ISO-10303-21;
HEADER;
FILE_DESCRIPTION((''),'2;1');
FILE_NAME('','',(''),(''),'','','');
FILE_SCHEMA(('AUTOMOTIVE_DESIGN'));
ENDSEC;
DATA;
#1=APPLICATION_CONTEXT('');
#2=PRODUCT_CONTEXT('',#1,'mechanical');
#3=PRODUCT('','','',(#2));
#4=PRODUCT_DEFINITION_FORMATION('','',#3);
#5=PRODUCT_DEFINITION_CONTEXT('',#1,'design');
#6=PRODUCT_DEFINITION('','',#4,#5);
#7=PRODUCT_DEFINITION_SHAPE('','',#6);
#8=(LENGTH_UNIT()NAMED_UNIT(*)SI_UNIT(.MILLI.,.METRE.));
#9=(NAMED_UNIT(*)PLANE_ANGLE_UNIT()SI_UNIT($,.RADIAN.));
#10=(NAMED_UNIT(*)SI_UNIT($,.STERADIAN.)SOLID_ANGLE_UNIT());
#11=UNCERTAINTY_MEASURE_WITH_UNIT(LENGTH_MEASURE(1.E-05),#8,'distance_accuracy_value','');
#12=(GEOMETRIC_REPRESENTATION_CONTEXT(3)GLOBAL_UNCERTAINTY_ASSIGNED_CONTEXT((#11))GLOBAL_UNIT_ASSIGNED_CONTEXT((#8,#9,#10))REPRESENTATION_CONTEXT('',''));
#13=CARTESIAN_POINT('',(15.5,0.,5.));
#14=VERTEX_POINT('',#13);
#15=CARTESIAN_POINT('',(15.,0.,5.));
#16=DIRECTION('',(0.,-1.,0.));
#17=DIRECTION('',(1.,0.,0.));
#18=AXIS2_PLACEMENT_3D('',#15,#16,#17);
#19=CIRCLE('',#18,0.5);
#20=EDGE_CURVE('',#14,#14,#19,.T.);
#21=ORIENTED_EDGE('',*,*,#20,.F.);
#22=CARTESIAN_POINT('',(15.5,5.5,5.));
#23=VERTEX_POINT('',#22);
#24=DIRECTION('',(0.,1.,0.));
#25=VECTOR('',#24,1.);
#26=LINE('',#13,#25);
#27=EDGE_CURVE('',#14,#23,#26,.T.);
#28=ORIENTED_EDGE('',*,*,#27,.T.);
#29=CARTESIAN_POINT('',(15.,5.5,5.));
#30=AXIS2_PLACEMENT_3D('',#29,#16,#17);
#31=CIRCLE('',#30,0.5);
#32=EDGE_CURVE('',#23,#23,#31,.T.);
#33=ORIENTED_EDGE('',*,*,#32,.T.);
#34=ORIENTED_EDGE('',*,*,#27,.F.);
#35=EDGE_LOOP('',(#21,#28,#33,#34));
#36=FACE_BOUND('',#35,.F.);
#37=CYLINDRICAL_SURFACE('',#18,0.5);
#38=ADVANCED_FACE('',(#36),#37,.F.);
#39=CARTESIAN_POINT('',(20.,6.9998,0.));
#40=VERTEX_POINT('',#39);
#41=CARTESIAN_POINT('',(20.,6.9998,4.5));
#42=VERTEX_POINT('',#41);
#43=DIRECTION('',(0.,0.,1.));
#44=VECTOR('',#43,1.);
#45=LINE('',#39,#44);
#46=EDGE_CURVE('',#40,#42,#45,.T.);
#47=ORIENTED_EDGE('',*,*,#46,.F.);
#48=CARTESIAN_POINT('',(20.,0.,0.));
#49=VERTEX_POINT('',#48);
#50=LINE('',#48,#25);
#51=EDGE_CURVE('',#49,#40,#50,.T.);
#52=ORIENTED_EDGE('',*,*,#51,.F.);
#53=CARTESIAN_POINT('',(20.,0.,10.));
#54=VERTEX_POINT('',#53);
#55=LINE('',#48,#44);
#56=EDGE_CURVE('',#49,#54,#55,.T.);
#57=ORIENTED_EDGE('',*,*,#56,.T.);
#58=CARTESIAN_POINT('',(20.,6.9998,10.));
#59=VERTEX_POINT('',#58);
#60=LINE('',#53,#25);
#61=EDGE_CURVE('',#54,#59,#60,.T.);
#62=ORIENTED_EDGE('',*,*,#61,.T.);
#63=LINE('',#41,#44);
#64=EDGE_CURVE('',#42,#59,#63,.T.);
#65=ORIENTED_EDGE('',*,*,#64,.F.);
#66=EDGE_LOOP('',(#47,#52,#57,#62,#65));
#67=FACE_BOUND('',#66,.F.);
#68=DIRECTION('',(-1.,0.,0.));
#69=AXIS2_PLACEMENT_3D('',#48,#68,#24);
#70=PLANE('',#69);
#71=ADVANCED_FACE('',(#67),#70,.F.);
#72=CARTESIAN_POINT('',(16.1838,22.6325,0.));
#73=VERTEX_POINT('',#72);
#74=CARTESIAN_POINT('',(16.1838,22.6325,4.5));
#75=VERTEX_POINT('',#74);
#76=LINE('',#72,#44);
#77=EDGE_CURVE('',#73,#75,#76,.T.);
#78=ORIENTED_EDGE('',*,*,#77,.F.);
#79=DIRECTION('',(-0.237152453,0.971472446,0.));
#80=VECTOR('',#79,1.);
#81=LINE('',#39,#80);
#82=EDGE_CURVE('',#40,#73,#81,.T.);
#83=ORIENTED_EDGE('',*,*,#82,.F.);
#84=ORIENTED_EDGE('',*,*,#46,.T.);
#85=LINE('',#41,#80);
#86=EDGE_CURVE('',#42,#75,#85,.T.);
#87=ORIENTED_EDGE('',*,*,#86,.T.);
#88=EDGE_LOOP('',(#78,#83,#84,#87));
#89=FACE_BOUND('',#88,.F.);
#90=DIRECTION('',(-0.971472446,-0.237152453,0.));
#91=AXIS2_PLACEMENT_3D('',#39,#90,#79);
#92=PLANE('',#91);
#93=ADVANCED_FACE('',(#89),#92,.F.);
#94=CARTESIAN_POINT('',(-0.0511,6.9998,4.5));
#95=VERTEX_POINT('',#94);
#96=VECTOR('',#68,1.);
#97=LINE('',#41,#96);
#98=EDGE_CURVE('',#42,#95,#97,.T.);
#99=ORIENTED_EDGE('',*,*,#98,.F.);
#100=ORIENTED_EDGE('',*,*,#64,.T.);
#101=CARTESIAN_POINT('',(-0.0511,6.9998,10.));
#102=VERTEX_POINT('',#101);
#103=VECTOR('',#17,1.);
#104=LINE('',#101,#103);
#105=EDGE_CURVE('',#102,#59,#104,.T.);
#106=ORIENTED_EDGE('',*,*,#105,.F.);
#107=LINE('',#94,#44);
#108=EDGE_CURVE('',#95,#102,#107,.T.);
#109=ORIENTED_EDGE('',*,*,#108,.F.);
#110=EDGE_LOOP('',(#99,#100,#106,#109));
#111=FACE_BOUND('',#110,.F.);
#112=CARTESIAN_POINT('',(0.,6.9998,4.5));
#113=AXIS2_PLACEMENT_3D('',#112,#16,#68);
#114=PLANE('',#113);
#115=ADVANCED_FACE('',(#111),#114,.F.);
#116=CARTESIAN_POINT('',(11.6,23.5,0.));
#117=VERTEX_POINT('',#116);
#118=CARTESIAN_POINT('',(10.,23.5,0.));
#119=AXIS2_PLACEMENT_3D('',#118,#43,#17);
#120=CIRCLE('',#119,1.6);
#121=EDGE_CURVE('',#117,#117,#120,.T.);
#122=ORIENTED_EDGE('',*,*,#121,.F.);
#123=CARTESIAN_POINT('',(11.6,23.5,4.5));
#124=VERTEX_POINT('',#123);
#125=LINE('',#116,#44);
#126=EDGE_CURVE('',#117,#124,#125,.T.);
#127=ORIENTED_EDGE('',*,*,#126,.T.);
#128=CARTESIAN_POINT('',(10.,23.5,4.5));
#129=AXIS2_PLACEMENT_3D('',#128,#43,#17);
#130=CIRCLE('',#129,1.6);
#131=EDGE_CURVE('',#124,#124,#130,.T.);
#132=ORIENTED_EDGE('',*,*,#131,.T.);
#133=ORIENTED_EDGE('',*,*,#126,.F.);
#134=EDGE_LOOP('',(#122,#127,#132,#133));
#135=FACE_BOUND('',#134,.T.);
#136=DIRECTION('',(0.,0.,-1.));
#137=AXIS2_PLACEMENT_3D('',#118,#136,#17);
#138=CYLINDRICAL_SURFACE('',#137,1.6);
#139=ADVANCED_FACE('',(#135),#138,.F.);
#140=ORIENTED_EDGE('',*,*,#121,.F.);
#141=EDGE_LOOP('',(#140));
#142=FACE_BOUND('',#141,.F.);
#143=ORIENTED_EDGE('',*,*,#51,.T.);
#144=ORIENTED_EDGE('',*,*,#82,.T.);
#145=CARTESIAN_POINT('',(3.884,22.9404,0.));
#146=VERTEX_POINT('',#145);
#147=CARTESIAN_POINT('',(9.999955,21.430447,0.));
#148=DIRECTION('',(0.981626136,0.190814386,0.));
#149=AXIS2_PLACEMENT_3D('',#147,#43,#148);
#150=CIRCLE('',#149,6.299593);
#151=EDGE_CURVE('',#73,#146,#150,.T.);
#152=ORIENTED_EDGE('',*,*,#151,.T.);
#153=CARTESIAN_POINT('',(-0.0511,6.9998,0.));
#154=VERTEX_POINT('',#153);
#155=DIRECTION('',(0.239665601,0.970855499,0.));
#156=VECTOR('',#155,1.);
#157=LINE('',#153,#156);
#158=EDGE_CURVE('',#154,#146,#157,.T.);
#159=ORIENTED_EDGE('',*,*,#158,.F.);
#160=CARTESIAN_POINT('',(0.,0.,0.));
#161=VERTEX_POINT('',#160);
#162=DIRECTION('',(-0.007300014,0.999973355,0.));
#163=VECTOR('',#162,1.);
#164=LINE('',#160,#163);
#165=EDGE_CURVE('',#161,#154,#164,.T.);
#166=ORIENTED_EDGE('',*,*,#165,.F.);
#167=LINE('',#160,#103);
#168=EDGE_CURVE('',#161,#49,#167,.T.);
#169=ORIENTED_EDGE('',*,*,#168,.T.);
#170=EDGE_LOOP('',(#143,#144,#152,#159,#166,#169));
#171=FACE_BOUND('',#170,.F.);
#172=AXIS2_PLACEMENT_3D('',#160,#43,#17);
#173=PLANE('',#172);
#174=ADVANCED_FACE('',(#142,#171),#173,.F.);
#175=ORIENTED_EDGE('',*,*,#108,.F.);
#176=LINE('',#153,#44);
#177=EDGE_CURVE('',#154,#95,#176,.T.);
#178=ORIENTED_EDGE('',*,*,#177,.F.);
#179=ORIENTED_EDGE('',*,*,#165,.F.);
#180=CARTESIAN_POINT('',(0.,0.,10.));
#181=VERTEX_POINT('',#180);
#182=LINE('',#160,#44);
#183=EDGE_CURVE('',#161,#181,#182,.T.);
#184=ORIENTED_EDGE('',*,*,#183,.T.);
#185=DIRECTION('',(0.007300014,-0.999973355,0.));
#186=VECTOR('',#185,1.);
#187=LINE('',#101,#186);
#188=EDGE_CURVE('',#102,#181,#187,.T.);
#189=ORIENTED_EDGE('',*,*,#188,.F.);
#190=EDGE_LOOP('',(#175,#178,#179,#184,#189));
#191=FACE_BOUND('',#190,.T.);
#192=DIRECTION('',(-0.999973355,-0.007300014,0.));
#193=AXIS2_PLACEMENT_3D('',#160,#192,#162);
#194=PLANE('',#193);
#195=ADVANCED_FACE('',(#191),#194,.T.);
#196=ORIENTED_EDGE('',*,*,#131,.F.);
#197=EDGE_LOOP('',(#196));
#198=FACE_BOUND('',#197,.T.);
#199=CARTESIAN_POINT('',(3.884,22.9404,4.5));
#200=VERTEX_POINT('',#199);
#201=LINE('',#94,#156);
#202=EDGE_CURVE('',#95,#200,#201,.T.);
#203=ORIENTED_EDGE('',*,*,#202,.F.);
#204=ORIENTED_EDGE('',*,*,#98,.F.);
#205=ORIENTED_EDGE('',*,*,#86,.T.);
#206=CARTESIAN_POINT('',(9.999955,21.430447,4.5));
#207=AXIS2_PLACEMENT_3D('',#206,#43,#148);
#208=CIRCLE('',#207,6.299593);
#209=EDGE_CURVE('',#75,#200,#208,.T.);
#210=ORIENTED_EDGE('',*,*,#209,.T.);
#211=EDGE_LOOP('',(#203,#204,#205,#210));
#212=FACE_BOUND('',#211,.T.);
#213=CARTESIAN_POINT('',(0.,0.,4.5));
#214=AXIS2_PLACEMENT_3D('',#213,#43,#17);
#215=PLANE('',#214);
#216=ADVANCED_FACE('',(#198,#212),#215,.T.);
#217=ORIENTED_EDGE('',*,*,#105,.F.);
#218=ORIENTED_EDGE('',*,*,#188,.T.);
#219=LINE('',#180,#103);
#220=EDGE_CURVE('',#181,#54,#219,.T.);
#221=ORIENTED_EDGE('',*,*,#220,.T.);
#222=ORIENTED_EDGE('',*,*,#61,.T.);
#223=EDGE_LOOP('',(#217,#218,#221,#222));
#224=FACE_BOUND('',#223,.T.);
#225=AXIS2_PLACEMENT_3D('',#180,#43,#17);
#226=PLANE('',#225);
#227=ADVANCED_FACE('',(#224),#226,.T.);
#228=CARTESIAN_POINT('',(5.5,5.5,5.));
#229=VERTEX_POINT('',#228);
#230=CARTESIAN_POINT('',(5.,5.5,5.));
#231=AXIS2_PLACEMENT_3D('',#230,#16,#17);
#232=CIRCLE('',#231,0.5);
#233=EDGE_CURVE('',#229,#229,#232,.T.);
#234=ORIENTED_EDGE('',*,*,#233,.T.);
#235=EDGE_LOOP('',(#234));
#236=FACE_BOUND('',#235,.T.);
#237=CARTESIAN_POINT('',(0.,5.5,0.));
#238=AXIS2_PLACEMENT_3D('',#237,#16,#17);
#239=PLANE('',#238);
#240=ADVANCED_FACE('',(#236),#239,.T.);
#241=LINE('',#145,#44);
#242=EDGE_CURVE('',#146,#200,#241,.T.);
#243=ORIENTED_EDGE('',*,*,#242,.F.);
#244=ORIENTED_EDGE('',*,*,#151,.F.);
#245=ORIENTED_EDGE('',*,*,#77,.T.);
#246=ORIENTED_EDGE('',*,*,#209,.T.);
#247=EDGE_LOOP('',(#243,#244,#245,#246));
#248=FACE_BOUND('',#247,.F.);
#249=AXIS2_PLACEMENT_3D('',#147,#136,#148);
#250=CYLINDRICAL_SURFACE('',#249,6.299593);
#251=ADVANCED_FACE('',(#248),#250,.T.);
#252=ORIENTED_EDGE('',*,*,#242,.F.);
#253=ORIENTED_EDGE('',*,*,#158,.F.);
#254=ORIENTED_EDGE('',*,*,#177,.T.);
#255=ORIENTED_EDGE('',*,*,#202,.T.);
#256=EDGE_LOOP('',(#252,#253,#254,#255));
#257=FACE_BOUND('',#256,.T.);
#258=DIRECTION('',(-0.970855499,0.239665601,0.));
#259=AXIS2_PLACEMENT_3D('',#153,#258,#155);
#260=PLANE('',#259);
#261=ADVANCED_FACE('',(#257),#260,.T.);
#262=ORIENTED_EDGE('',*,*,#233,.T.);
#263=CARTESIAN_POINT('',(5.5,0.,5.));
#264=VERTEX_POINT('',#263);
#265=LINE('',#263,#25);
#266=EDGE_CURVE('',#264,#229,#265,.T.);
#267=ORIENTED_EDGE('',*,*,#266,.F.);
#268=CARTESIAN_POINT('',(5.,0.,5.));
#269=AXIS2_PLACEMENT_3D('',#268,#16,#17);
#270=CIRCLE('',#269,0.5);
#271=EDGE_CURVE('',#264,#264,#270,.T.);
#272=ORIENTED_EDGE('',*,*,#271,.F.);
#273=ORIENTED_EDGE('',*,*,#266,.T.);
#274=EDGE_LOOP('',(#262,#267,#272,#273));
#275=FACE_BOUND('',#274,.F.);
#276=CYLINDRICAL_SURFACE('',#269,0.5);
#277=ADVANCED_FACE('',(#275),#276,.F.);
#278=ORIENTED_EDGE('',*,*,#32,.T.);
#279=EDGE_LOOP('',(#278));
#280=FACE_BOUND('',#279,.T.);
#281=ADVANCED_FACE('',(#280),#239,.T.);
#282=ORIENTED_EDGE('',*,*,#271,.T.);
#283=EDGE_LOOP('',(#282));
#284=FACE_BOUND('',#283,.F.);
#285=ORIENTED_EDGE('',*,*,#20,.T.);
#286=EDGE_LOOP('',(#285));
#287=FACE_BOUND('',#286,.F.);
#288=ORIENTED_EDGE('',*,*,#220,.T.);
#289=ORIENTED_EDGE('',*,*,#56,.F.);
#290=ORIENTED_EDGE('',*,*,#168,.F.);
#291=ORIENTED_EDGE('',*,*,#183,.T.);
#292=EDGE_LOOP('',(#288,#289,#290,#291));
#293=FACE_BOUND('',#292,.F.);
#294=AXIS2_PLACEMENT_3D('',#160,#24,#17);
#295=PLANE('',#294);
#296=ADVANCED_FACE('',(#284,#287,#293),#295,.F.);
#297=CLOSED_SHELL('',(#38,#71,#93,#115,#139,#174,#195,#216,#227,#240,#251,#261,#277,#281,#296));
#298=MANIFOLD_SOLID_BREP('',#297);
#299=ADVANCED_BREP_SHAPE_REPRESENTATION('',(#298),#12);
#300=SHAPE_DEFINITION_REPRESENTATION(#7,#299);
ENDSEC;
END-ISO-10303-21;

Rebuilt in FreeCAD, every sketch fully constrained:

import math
import FreeCAD as App
import Part
import Sketcher
Q = App.Units.Quantity


def add_polygon(sketch, points):
    """Adds a closed chain of lines whose ends are joined by coincident constraints."""
    first, n = sketch.GeometryCount, len(points)
    for a, b in zip(points, points[1:] + points[:1]):
        sketch.addGeometry(Part.LineSegment(App.Vector(*a, 0), App.Vector(*b, 0)), False)
    for i in range(n):
        sketch.addConstraint(Sketcher.Constraint("Coincident", first + i, 2, first + (i + 1) % n, 1))

doc = App.newDocument("Part")
body = doc.addObject("PartDesign::Body", "Body")

# Sketch on XY plane
sketch1 = doc.addObject("Sketcher::SketchObject", "Sketch")
body.addObject(sketch1)
sketch1.AttachmentSupport = (doc.XY_Plane, [""])
sketch1.MapMode = "FlatFace"
sketch1.addGeometry(Part.LineSegment(App.Vector(3.884, 22.9404, 0), App.Vector(-0.0511, 6.9998, 0)), False)
sketch1.addGeometry(Part.LineSegment(App.Vector(-0.0511, 6.9998, 0), App.Vector(0, 0, 0)), False)
sketch1.addGeometry(Part.LineSegment(App.Vector(0, 0, 0), App.Vector(20, 0, 0)), False)
sketch1.addGeometry(Part.LineSegment(App.Vector(20, 0, 0), App.Vector(20, 6.9998, 0)), False)
sketch1.addGeometry(Part.LineSegment(App.Vector(20, 6.9998, 0), App.Vector(16.1838, 22.6325, 0)), False)
sketch1.addGeometry(Part.ArcOfCircle(Part.Circle(App.Vector(10, 21.4305, 0), App.Vector(0, 0, 1), 6.299539), math.radians(10.99992), math.radians(166.132287)), False)
sketch1.addGeometry(Part.Circle(App.Vector(10, 23.5, 0), App.Vector(0, 0, 1), 1.6), False)
sketch1.addConstraint(Sketcher.Constraint("Coincident", 0, 2, 1, 1))
sketch1.addConstraint(Sketcher.Constraint("Coincident", 1, 2, 2, 1))
sketch1.addConstraint(Sketcher.Constraint("Coincident", 2, 2, 3, 1))
sketch1.addConstraint(Sketcher.Constraint("Coincident", 3, 2, 4, 1))
sketch1.addConstraint(Sketcher.Constraint("Coincident", 4, 2, 5, 1))
sketch1.addConstraint(Sketcher.Constraint("Coincident", 5, 2, 0, 1))
sketch1.addConstraint(Sketcher.Constraint("Horizontal", 2))
sketch1.addConstraint(Sketcher.Constraint("Vertical", 3))
sketch1.addConstraint(Sketcher.Constraint("Coincident", 1, 2, -1, 1))
sketch1.addConstraint(Sketcher.Constraint("Distance", 1, Q("7 mm")))
sketch1.addConstraint(Sketcher.Constraint("Diameter", 6, Q("3.2 mm")))
sketch1.addConstraint(Sketcher.Constraint("DistanceX", 2, 1, 2, 2, Q("20 mm")))
sketch1.addConstraint(Sketcher.Constraint("DistanceY", 3, 1, 3, 2, Q("6.9998 mm")))
sketch1.addConstraint(Sketcher.Constraint("DistanceX", -1, 1, 5, 3, Q("10 mm")))
sketch1.addConstraint(Sketcher.Constraint("DistanceX", -1, 1, 6, 3, Q("10 mm")))
sketch1.addConstraint(Sketcher.Constraint("DistanceY", -1, 1, 6, 3, Q("23.5 mm")))
sketch1.addConstraint(Sketcher.Constraint("DistanceY", -1, 1, 0, 2, Q("6.9998 mm")))
sketch1.addConstraint(Sketcher.Constraint("Radius", 5, Q("6.2995 mm")))
sketch1.addConstraint(Sketcher.Constraint("DistanceX", -1, 1, 5, 2, Q("3.884 mm")))
sketch1.addConstraint(Sketcher.Constraint("DistanceY", 5, 3, 4, 2, Q("1.202 mm")))
sketch1.addConstraint(Sketcher.Constraint("Distance", 0, Q("16.4191 mm")))
pad1 = doc.addObject("PartDesign::Pad", "Pad")
body.addObject(pad1)
pad1.Profile = sketch1
pad1.Length = 4.5

# Sketch on XY plane
sketch2 = doc.addObject("Sketcher::SketchObject", "Sketch001")
body.addObject(sketch2)
sketch2.AttachmentSupport = (doc.XY_Plane, [""])
sketch2.MapMode = "FlatFace"
sketch2.AttachmentOffset = App.Placement(App.Vector(0, 0, 4.5), App.Rotation())
add_polygon(sketch2, [(0, 7), (0, 0), (20, 0), (20, 7)])  # lines 0-3
sketch2.addConstraint(Sketcher.Constraint("Horizontal", 1))
sketch2.addConstraint(Sketcher.Constraint("Vertical", 2))
sketch2.addConstraint(Sketcher.Constraint("Horizontal", 3))
sketch2.addConstraint(Sketcher.Constraint("Coincident", 0, 2, -1, 1))
sketch2.addConstraint(Sketcher.Constraint("DistanceX", 1, 1, 1, 2, Q("20 mm")))
sketch2.addConstraint(Sketcher.Constraint("Distance", 0, Q("7 mm")))
sketch2.addConstraint(Sketcher.Constraint("DistanceX", 3, 2, 3, 1, Q("20.051 mm")))
pad2 = doc.addObject("PartDesign::Pad", "Pad001")
body.addObject(pad2)
pad2.Profile = sketch2
pad2.Length = 5.5

# Sketch on XZ plane
sketch3 = doc.addObject("Sketcher::SketchObject", "Sketch002")
body.addObject(sketch3)
sketch3.AttachmentSupport = (doc.XZ_Plane, [""])
sketch3.MapMode = "FlatFace"
sketch3.addGeometry(Part.Circle(App.Vector(5, 5, 0), App.Vector(0, 0, 1), 0.5), False)
sketch3.addGeometry(Part.Circle(App.Vector(15, 5, 0), App.Vector(0, 0, 1), 0.5), False)
sketch3.addConstraint(Sketcher.Constraint("Equal", 0, 1))
sketch3.addConstraint(Sketcher.Constraint("Horizontal", 0, 3, 1, 3))
sketch3.addConstraint(Sketcher.Constraint("Diameter", 0, Q("1 mm")))
sketch3.addConstraint(Sketcher.Constraint("DistanceX", -1, 1, 0, 3, Q("5 mm")))
sketch3.addConstraint(Sketcher.Constraint("DistanceY", -1, 1, 0, 3, Q("5 mm")))
sketch3.addConstraint(Sketcher.Constraint("DistanceX", -1, 1, 1, 3, Q("15 mm")))
pocket1 = doc.addObject("PartDesign::Pocket", "Pocket")
body.addObject(pocket1)
pocket1.Profile = sketch3
pocket1.Length = 5.5

doc.recompute()
